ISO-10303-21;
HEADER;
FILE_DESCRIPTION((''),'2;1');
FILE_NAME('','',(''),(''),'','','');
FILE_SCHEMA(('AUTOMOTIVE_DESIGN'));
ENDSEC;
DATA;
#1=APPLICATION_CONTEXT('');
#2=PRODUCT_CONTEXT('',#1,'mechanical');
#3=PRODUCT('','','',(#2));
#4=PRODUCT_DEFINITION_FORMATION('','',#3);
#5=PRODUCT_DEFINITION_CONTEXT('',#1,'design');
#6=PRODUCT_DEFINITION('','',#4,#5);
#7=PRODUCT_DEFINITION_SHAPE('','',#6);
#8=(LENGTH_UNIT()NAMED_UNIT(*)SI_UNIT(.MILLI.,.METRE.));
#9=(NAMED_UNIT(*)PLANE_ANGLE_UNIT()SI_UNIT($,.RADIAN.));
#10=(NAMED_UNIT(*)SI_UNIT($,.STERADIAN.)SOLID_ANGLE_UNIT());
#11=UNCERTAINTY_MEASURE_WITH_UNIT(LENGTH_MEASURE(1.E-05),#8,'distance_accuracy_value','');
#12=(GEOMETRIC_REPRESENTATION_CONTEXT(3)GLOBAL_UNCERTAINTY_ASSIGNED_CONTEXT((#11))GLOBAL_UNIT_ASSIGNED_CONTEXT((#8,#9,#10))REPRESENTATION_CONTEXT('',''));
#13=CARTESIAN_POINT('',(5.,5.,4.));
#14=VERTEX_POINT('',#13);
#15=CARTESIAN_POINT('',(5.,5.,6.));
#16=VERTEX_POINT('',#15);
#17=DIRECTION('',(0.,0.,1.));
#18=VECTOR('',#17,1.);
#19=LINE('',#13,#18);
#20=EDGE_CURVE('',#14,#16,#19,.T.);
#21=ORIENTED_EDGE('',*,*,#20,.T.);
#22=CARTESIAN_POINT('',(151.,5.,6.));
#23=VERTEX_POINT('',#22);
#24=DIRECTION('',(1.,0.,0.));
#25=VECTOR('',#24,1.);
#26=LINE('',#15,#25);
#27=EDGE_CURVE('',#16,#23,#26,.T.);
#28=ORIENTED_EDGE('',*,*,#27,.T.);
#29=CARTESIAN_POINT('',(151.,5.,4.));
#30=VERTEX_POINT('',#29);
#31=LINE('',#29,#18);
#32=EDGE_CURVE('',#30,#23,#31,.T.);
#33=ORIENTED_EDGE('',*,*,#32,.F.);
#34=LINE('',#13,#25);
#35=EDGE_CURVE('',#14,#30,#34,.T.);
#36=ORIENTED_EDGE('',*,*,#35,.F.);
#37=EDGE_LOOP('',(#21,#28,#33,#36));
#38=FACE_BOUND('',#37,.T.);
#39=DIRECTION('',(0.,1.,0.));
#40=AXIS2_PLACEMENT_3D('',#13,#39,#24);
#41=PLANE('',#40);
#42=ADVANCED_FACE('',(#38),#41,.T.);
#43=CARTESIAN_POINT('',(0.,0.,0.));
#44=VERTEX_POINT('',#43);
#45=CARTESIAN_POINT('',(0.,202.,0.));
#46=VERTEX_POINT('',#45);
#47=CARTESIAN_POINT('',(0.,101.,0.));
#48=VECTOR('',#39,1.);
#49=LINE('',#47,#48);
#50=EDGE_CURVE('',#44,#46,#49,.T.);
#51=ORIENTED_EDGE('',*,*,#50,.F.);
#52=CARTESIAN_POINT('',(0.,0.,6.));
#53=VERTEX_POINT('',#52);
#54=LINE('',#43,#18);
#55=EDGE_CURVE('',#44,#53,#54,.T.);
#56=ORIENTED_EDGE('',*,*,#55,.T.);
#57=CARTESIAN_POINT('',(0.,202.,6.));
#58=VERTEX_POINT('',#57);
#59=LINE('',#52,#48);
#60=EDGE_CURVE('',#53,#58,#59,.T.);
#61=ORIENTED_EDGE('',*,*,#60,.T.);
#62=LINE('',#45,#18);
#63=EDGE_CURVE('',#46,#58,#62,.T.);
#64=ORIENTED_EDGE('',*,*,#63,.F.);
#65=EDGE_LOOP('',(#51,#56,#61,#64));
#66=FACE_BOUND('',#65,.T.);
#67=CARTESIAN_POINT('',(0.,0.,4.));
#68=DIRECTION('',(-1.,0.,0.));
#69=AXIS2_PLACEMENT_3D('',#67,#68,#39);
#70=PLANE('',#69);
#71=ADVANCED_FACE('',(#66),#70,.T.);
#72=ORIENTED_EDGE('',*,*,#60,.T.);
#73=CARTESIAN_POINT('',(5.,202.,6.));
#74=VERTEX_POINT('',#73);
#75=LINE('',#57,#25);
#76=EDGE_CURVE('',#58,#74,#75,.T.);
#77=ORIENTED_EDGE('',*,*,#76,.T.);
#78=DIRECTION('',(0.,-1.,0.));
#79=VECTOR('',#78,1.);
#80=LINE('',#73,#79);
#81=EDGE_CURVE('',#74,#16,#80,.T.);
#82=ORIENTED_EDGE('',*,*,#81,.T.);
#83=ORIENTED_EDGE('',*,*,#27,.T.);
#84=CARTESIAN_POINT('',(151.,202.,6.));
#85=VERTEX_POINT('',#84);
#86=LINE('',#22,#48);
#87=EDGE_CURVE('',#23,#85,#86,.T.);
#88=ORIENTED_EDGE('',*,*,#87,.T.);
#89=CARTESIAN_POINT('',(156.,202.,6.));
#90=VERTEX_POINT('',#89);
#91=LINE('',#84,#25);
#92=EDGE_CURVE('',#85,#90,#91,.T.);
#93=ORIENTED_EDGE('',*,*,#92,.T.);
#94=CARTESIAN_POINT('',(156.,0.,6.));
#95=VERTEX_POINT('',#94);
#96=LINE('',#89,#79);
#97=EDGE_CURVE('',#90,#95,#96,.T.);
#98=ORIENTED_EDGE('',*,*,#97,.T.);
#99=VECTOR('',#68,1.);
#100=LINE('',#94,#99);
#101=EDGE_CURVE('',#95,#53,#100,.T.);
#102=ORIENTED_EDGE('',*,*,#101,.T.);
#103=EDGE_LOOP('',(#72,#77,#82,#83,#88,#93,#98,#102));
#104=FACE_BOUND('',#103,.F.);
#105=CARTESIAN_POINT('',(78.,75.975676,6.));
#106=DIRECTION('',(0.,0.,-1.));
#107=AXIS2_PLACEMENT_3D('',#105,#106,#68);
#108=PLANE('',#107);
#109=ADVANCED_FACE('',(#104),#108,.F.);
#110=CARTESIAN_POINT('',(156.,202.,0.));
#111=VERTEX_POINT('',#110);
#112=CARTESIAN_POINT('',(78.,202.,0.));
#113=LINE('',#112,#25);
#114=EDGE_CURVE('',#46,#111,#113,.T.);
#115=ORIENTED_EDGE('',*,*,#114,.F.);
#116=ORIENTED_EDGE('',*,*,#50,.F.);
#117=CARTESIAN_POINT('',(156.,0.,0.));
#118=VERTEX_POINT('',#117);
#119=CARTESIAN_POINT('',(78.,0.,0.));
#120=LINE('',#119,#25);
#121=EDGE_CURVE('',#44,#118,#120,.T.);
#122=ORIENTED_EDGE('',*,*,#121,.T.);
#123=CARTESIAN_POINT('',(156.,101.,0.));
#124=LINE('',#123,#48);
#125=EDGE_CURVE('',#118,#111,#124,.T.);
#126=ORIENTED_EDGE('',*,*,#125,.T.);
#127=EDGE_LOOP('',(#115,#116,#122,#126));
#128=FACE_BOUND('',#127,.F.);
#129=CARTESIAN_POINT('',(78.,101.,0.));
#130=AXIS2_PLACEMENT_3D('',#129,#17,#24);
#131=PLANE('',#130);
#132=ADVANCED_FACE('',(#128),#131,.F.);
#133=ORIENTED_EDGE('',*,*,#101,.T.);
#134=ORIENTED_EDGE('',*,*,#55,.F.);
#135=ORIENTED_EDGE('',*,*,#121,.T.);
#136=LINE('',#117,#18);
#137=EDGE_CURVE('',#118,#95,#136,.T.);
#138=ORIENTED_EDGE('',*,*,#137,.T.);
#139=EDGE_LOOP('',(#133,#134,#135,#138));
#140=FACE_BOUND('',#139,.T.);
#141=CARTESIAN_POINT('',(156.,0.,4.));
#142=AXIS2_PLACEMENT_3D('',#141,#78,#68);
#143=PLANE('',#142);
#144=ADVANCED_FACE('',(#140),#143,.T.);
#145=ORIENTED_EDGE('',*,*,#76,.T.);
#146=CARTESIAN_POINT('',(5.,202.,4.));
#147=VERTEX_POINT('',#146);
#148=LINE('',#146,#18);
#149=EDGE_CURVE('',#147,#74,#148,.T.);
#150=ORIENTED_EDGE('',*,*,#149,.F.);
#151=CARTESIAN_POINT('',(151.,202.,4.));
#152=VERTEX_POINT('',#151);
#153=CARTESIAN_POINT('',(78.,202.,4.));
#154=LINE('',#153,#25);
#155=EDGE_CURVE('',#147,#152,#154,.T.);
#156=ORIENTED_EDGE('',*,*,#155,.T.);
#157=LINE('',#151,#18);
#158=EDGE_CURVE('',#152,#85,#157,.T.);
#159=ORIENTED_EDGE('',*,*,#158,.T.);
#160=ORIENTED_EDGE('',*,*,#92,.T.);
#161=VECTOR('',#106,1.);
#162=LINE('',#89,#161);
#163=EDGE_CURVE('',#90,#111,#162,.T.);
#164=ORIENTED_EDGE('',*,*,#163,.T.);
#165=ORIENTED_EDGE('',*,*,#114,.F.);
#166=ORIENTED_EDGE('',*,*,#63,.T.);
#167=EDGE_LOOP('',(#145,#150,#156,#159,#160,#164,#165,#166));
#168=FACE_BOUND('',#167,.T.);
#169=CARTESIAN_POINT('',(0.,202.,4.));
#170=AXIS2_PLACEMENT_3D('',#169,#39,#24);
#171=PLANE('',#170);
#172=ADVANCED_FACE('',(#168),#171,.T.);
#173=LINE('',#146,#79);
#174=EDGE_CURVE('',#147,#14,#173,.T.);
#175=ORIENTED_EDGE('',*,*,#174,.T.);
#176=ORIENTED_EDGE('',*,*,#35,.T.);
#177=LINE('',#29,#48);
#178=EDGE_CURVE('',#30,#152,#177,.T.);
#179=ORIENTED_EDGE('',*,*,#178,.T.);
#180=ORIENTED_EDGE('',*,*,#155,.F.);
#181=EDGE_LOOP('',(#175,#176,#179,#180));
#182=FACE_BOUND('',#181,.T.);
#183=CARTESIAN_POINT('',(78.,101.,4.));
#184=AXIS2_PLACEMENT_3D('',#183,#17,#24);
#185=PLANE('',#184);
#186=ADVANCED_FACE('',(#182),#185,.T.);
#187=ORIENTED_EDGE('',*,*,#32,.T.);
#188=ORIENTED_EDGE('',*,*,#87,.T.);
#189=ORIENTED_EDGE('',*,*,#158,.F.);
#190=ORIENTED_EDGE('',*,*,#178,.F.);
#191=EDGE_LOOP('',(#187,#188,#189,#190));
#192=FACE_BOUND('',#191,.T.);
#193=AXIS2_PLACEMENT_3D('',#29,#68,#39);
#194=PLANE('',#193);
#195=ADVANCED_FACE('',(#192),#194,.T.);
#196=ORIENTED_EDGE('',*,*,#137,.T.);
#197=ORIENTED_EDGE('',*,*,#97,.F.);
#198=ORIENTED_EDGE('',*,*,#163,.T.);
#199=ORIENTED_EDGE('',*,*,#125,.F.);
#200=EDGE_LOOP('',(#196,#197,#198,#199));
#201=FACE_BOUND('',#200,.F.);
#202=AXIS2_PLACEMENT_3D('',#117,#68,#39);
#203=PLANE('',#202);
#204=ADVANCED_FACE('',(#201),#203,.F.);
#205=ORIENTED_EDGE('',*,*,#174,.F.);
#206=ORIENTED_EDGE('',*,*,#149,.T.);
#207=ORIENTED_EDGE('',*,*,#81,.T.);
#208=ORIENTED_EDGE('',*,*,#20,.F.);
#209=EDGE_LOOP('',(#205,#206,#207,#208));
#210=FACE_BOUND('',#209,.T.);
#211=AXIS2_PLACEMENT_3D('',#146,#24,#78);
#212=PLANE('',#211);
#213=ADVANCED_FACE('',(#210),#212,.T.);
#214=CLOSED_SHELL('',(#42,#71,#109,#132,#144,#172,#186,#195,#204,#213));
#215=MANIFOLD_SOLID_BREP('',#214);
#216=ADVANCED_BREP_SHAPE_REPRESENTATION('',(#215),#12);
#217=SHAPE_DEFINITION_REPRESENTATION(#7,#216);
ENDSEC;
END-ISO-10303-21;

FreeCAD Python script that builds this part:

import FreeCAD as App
import Part
import Sketcher

doc = App.newDocument("Part")
body = doc.addObject("PartDesign::Body", "Body")

# Sketch on XY plane
sketch1 = doc.addObject("Sketcher::SketchObject", "Sketch")
body.addObject(sketch1)
sketch1.AttachmentSupport = (doc.XY_Plane, [""])
sketch1.MapMode = "FlatFace"
sketch1.addGeometry([
    Part.LineSegment(App.Vector(0, 202, 0), App.Vector(0, 0, 0)),
    Part.LineSegment(App.Vector(0, 0, 0), App.Vector(156, 0, 0)),
    Part.LineSegment(App.Vector(156, 0, 0), App.Vector(156, 202, 0)),
    Part.LineSegment(App.Vector(156, 202, 0), App.Vector(0, 202, 0)),
], False)
sketch1.addConstraint([
    Sketcher.Constraint("Coincident", 0, 2, 1, 1),
    Sketcher.Constraint("Coincident", 1, 2, 2, 1),
    Sketcher.Constraint("Coincident", 2, 2, 3, 1),
    Sketcher.Constraint("Coincident", 3, 2, 0, 1),
    Sketcher.Constraint("Vertical", 0),
    Sketcher.Constraint("Horizontal", 1),
    Sketcher.Constraint("Vertical", 2),
    Sketcher.Constraint("Horizontal", 3),
    Sketcher.Constraint("Coincident", 0, 2, -1, 1),
    Sketcher.Constraint("DistanceX", 1, 1, 1, 2, 156.0),
    Sketcher.Constraint("DistanceY", 0, 2, 0, 1, 202.0),
])
pad1 = doc.addObject("PartDesign::Pad", "Pad")
body.addObject(pad1)
pad1.Profile = sketch1
pad1.Length = 4

# Sketch on XY plane
sketch2 = doc.addObject("Sketcher::SketchObject", "Sketch001")
body.addObject(sketch2)
sketch2.AttachmentSupport = (doc.XY_Plane, [""])
sketch2.MapMode = "FlatFace"
sketch2.AttachmentOffset = App.Placement(App.Vector(0, 0, 4), App.Rotation())
sketch2.addGeometry([
    Part.LineSegment(App.Vector(5, 202, 0), App.Vector(0, 202, 0)),  # 0
    Part.LineSegment(App.Vector(0, 202, 0), App.Vector(0, 0, 0)),  # 1
    Part.LineSegment(App.Vector(0, 0, 0), App.Vector(156, 0, 0)),  # 2
    Part.LineSegment(App.Vector(156, 0, 0), App.Vector(156, 202, 0)),  # 3
    Part.LineSegment(App.Vector(156, 202, 0), App.Vector(151, 202, 0)),  # 4
    Part.LineSegment(App.Vector(151, 202, 0), App.Vector(151, 5, 0)),  # 5
    Part.LineSegment(App.Vector(151, 5, 0), App.Vector(5, 5, 0)),  # 6
    Part.LineSegment(App.Vector(5, 5, 0), App.Vector(5, 202, 0)),  # 7
], False)
sketch2.addConstraint([
    Sketcher.Constraint("Coincident", 0, 2, 1, 1),
    Sketcher.Constraint("Coincident", 1, 2, 2, 1),
    Sketcher.Constraint("Coincident", 2, 2, 3, 1),
    Sketcher.Constraint("Coincident", 3, 2, 4, 1),
    Sketcher.Constraint("Coincident", 4, 2, 5, 1),
    Sketcher.Constraint("Coincident", 5, 2, 6, 1),
    Sketcher.Constraint("Coincident", 6, 2, 7, 1),
    Sketcher.Constraint("Coincident", 7, 2, 0, 1),
    Sketcher.Constraint("Horizontal", 0),
    Sketcher.Constraint("Vertical", 1),
    Sketcher.Constraint("Horizontal", 2),
    Sketcher.Constraint("Vertical", 3),
    Sketcher.Constraint("Horizontal", 4),
    Sketcher.Constraint("Vertical", 5),
    Sketcher.Constraint("Horizontal", 6),
    Sketcher.Constraint("Vertical", 7),
    Sketcher.Constraint("Coincident", 1, 2, -1, 1),
    Sketcher.Constraint("Horizontal", 0, 2, 3, 2),
    Sketcher.Constraint("Equal", 0, 4),
    Sketcher.Constraint("DistanceX", 0, 2, 0, 1, 5.0),
    Sketcher.Constraint("DistanceX", 2, 1, 2, 2, 156.0),
    Sketcher.Constraint("DistanceY", 1, 2, 1, 1, 202.0),
    Sketcher.Constraint("DistanceY", 5, 2, 5, 1, 197.0),
])
pad2 = doc.addObject("PartDesign::Pad", "Pad001")
body.addObject(pad2)
pad2.Profile = sketch2
pad2.Length = 2

doc.recompute()
